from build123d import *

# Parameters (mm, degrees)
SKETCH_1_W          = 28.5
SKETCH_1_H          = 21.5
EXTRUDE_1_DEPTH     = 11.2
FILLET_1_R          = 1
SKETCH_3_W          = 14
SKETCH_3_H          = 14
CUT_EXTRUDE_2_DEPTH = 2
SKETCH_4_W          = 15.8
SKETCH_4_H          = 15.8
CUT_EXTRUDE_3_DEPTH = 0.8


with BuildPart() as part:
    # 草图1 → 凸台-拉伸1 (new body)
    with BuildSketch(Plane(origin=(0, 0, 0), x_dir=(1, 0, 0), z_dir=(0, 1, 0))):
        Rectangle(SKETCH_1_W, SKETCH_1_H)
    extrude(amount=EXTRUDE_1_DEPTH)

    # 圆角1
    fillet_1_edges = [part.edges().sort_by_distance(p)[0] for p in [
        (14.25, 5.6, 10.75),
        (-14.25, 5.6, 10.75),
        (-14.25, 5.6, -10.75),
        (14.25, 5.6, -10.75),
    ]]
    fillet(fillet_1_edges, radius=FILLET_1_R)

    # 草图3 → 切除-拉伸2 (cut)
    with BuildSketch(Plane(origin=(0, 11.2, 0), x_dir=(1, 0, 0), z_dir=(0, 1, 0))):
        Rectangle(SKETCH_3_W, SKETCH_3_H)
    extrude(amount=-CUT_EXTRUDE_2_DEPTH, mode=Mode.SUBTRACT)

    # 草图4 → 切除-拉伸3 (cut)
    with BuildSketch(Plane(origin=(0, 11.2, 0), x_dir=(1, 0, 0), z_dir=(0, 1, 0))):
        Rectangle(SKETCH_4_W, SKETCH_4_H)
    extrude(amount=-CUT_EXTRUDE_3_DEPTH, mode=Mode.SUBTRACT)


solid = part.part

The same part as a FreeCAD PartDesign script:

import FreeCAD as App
import Part
import Sketcher
Q = App.Units.Quantity


def edges_at(feature, points):
    """Names of the edges that pass closest to the given points."""
    edges = feature.Shape.Edges
    near = lambda p: min(range(len(edges)), key=lambda i: edges[i].distToShape(Part.Vertex(*p))[0])
    return sorted({f"Edge{near(p) + 1}" for p in points})


def add_polygon(sketch, points):
    """Adds a closed chain of lines whose ends are joined by coincident constraints."""
    first, n = sketch.GeometryCount, len(points)
    for a, b in zip(points, points[1:] + points[:1]):
        sketch.addGeometry(Part.LineSegment(App.Vector(*a, 0), App.Vector(*b, 0)), False)
    for i in range(n):
        sketch.addConstraint(Sketcher.Constraint("Coincident", first + i, 2, first + (i + 1) % n, 1))

doc = App.newDocument("Part")
body = doc.addObject("PartDesign::Body", "Body")

sketch1 = body.newObject("Sketcher::SketchObject", "Sketch")
sketch1.AttachmentSupport = (doc.getObject("XZ_Plane"), [""])
sketch1.MapMode = "FlatFace"
add_polygon(sketch1, [(-14.25, -10.75), (-14.25, 10.75), (14.25, 10.75), (14.25, -10.75)])
sketch1.addConstraint(Sketcher.Constraint("Vertical", 0))
sketch1.addConstraint(Sketcher.Constraint("Horizontal", 1))
sketch1.addConstraint(Sketcher.Constraint("Vertical", 2))
sketch1.addConstraint(Sketcher.Constraint("Horizontal", 3))
sketch1.addConstraint(Sketcher.Constraint("Symmetric", 0, 2, 2, 2, -1, 1))
sketch1.addConstraint(Sketcher.Constraint("DistanceX", 1, 1, 1, 2, Q("28.5 mm")))
sketch1.addConstraint(Sketcher.Constraint("DistanceY", 0, 1, 0, 2, Q("21.5 mm")))
pad1 = body.newObject("PartDesign::Pad", "Pad")
pad1.Profile = sketch1
pad1.Length = 11.2
pad1.Reversed = True
doc.recompute()

fillet = body.newObject("PartDesign::Fillet", "Fillet")
fillet.Base = (pad1, edges_at(pad1, [
    (14.25, 5.6, 10.75),
    (-14.25, 5.6, 10.75),
    (-14.25, 5.6, -10.75),
    (14.25, 5.6, -10.75),
]))
fillet.Radius = 1

sketch2 = body.newObject("Sketcher::SketchObject", "Sketch001")
sketch2.AttachmentSupport = (doc.getObject("XZ_Plane"), [""])
sketch2.MapMode = "FlatFace"
sketch2.AttachmentOffset = App.Placement(App.Vector(0, 0, -11.2), App.Rotation())
add_polygon(sketch2, [(-7, -7), (-7, 7), (7, 7), (7, -7)])
sketch2.addConstraint(Sketcher.Constraint("Vertical", 0))
sketch2.addConstraint(Sketcher.Constraint("Horizontal", 1))
sketch2.addConstraint(Sketcher.Constraint("Vertical", 2))
sketch2.addConstraint(Sketcher.Constraint("Horizontal", 3))
sketch2.addConstraint(Sketcher.Constraint("Symmetric", 0, 2, 2, 2, -1, 1))
sketch2.addConstraint(Sketcher.Constraint("Equal", 3, 0))
sketch2.addConstraint(Sketcher.Constraint("DistanceX", 1, 1, 1, 2, Q("14 mm")))
pocket1 = body.newObject("PartDesign::Pocket", "Pocket")
pocket1.Profile = sketch2
pocket1.Length = 2
pocket1.Reversed = True

sketch3 = body.newObject("Sketcher::SketchObject", "Sketch002")
sketch3.AttachmentSupport = (doc.getObject("XZ_Plane"), [""])
sketch3.MapMode = "FlatFace"
sketch3.AttachmentOffset = App.Placement(App.Vector(0, 0, -11.2), App.Rotation())
add_polygon(sketch3, [(-7.9, -7.9), (-7.9, 7.9), (7.9, 7.9), (7.9, -7.9)])
sketch3.addConstraint(Sketcher.Constraint("Vertical", 0))
sketch3.addConstraint(Sketcher.Constraint("Horizontal", 1))
sketch3.addConstraint(Sketcher.Constraint("Vertical", 2))
sketch3.addConstraint(Sketcher.Constraint("Horizontal", 3))
sketch3.addConstraint(Sketcher.Constraint("Symmetric", 0, 2, 2, 2, -1, 1))
sketch3.addConstraint(Sketcher.Constraint("Equal", 3, 0))
sketch3.addConstraint(Sketcher.Constraint("DistanceX", 1, 1, 1, 2, Q("15.8 mm")))
pocket2 = body.newObject("PartDesign::Pocket", "Pocket001")
pocket2.Profile = sketch3
pocket2.Length = 0.8
pocket2.Reversed = True

doc.recompute()
